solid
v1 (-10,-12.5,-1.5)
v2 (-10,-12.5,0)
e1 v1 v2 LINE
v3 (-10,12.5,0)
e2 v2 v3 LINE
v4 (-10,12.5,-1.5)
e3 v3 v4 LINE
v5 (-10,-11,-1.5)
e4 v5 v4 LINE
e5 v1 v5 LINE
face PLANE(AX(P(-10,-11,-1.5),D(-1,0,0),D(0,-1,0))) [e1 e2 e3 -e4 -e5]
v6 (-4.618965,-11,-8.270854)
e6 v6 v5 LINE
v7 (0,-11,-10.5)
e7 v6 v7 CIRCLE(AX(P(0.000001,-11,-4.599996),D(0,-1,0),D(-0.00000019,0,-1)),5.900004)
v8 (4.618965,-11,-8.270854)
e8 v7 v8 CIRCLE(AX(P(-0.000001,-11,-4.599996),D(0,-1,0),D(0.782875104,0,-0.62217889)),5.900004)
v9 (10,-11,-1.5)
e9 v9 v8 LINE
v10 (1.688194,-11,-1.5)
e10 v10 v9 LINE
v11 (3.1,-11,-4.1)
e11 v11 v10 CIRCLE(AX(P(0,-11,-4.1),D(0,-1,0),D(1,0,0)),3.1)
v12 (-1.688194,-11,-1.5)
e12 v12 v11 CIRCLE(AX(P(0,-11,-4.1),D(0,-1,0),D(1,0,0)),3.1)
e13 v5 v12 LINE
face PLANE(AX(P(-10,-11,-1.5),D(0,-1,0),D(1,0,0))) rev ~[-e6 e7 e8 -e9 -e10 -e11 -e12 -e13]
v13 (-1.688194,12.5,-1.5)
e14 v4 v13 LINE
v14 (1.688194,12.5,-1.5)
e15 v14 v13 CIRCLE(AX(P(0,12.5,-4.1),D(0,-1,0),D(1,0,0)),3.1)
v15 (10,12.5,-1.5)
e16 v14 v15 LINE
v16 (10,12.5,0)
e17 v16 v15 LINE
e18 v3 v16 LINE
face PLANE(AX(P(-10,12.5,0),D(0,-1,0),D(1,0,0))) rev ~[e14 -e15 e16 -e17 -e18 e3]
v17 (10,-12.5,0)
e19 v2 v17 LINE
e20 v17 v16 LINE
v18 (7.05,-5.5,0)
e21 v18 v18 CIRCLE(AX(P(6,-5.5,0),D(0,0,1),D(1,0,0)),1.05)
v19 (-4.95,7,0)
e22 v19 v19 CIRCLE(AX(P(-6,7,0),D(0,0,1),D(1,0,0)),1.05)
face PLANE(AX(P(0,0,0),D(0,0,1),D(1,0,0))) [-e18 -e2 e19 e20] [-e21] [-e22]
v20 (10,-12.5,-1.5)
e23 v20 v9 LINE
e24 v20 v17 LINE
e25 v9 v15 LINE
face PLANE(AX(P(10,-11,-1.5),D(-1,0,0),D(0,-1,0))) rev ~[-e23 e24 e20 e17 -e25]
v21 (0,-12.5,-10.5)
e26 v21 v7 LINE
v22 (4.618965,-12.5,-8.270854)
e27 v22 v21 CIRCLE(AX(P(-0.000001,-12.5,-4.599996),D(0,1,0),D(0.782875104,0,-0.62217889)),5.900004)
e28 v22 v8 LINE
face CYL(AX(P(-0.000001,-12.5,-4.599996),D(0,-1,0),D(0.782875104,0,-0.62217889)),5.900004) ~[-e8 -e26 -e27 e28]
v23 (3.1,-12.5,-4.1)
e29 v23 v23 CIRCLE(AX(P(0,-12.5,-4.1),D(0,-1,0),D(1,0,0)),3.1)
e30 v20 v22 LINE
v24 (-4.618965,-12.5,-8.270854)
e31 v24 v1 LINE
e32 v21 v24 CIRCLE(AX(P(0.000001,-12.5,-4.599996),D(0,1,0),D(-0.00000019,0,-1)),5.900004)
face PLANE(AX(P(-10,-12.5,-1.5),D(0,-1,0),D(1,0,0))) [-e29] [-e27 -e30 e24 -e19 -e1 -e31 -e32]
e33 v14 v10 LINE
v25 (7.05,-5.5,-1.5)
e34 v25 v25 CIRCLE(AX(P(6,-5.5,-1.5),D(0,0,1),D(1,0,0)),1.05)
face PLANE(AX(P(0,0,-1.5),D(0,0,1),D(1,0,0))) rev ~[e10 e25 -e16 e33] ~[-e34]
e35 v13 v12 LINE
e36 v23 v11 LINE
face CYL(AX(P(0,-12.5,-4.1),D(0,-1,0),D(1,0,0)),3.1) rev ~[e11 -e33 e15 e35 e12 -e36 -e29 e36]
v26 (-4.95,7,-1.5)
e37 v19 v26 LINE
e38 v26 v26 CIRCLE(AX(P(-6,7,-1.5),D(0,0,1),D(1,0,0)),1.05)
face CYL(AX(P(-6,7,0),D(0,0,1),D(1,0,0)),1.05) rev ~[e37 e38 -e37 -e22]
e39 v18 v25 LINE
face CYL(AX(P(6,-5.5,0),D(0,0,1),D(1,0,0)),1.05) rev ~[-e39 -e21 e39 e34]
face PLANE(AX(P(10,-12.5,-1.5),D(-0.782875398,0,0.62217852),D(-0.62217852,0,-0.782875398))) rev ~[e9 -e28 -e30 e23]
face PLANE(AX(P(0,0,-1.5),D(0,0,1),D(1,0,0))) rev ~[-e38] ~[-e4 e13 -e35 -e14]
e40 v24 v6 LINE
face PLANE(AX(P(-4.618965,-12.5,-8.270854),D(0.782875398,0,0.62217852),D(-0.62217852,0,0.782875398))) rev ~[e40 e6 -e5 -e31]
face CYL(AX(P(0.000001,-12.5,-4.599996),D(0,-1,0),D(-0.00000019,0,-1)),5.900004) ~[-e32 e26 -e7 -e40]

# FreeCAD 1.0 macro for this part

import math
import FreeCAD as App
import Part
import Sketcher
from FreeCAD import Vector


def add_polygon(sketch, points):
    """Adds a closed chain of lines whose ends are joined by coincident constraints."""
    first, n = sketch.GeometryCount, len(points)
    for a, b in zip(points, points[1:] + points[:1]):
        sketch.addGeometry(Part.LineSegment(App.Vector(*a, 0), App.Vector(*b, 0)), False)
    for i in range(n):
        sketch.addConstraint(Sketcher.Constraint("Coincident", first + i, 2, first + (i + 1) % n, 1))

doc = App.newDocument("Part")
body = doc.addObject("PartDesign::Body", "Body")

sketch1 = body.newObject("Sketcher::SketchObject", "Sketch")
sketch1.AttachmentSupport = (doc.getObject("XY_Plane"), [""])
sketch1.MapMode = "FlatFace"
add_polygon(sketch1, [(-10, 12.5), (-10, -12.5), (10, -12.5), (10, 12.5)])
sketch1.addGeometry(Part.Circle(Vector(6, -5.5, 0), Vector(0, 0, 1), 1.1), False)
sketch1.addGeometry(Part.Circle(Vector(-6, 7, 0), Vector(0, 0, 1), 1.1), False)
sketch1.addConstraint([
    Sketcher.Constraint("Vertical", 0),
    Sketcher.Constraint("Horizontal", 1),
    Sketcher.Constraint("Vertical", 2),
    Sketcher.Constraint("Horizontal", 3),
    Sketcher.Constraint("Equal", 4, 5),
    Sketcher.Constraint("Symmetric", 0, 2, 2, 2, -1, 1),
    Sketcher.Constraint("Diameter", 4, 2.1),
    Sketcher.Constraint("DistanceX", 1, 1, 1, 2, 20.0),
    Sketcher.Constraint("DistanceY", 0, 2, 0, 1, 25.0),
    Sketcher.Constraint("DistanceX", -1, 1, 4, 3, 6.0),
    Sketcher.Constraint("DistanceX", 5, 3, -1, 1, 6.0),
    Sketcher.Constraint("DistanceY", -1, 1, 5, 3, 7.0),
    Sketcher.Constraint("DistanceY", 0, 2, 4, 3, 7.0),
])
pad1 = body.newObject("PartDesign::Pad", "Pad")
pad1.Profile = sketch1
pad1.Length = 1.5
pad1.Reversed = True

sketch2 = body.newObject("Sketcher::SketchObject", "Sketch001")
sketch2.AttachmentSupport = (doc.getObject("XY_Plane"), [""])
sketch2.MapMode = "FlatFace"
sketch2.AttachmentOffset = App.Placement(Vector(0, 0, -1.5), App.Rotation())
add_polygon(sketch2, [(-10, -12.5), (-10, -11), (10, -11), (10, -12.5)])
sketch2.addConstraint([
    Sketcher.Constraint("Vertical", 0),
    Sketcher.Constraint("Horizontal", 1),
    Sketcher.Constraint("Vertical", 2),
    Sketcher.Constraint("Horizontal", 3),
    Sketcher.Constraint("DistanceX", 1, 1, 1, 2, 20.0),
    Sketcher.Constraint("DistanceY", 0, 1, 0, 2, 1.5),
    Sketcher.Constraint("DistanceX", 0, 2, -1, 1, 10.0),
    Sketcher.Constraint("DistanceY", 0, 2, -1, 1, 11.0),
])
pad2 = body.newObject("PartDesign::Pad", "Pad001")
pad2.Profile = sketch2
pad2.Length = 9
pad2.Reversed = True

sketch3 = body.newObject("Sketcher::SketchObject", "Sketch002")
sketch3.AttachmentSupport = (doc.getObject("XZ_Plane"), [""])
sketch3.MapMode = "FlatFace"
sketch3.AttachmentOffset = App.Placement(Vector(0, 0, 12.5), App.Rotation())
sketch3.addGeometry([
    Part.Circle(Vector(0, -4.1, 0), Vector(0, 0, 1), 3.1),
    Part.LineSegment(Vector(-4.6, -8.3, 0), Vector(-10, -1.5, 0)),
    Part.LineSegment(Vector(-10, -1.5, 0), Vector(-10, -10.5, 0)),
    Part.LineSegment(Vector(-10, -10.5, 0), Vector(0, -10.5, 0)),
    Part.ArcOfCircle(Part.Circle(Vector(0, -4.6, 0), Vector(0, 0, 1), 5.9), math.radians(-142), math.radians(-90)),
    Part.ArcOfCircle(Part.Circle(Vector(0, -4.6, 0), Vector(0, 0, 1), 5.9), math.radians(-90), math.radians(-38)),
    Part.LineSegment(Vector(0, -10.5, 0), Vector(10, -10.5, 0)),
    Part.LineSegment(Vector(10, -10.5, 0), Vector(10, -1.5, 0)),
    Part.LineSegment(Vector(10, -1.5, 0), Vector(4.6, -8.3, 0)),
], False)
sketch3.addConstraint([
    Sketcher.Constraint("Coincident", 1, 2, 2, 1),
    Sketcher.Constraint("Coincident", 2, 2, 3, 1),
    Sketcher.Constraint("Tangent", 3, 2, 4, 2),
    Sketcher.Constraint("Tangent", 4, 1, 1, 1),
    Sketcher.Constraint("Tangent", 5, 1, 6, 1),
    Sketcher.Constraint("Coincident", 6, 2, 7, 1),
    Sketcher.Constraint("Coincident", 7, 2, 8, 1),
    Sketcher.Constraint("Tangent", 8, 2, 5, 2),
    Sketcher.Constraint("Vertical", 2),
    Sketcher.Constraint("Horizontal", 3),
    Sketcher.Constraint("Horizontal", 6),
    Sketcher.Constraint("Vertical", 7),
    Sketcher.Constraint("Coincident", 5, 3, 4, 3),
    Sketcher.Constraint("Equal", 4, 5),
    Sketcher.Constraint("Symmetric", 1, 2, 7, 2, -2),
    Sketcher.Constraint("PointOnObject", 0, 3, -2),
    Sketcher.Constraint("PointOnObject", 4, 3, -2),
    Sketcher.Constraint("Diameter", 0, 6.2),
    Sketcher.Constraint("DistanceX", 3, 1, 3, 2, 10.0),
    Sketcher.Constraint("DistanceY", 2, 2, 2, 1, 9.0),
    Sketcher.Constraint("DistanceY", 0, 3, -1, 1, 4.1),
    Sketcher.Constraint("DistanceY", 1, 2, -1, 1, 1.5),
    Sketcher.Constraint("Radius", 4, 5.900004),
])
pocket1 = body.newObject("PartDesign::Pocket", "Pocket")
pocket1.Profile = sketch3
pocket1.Length = 30

doc.recompute()
